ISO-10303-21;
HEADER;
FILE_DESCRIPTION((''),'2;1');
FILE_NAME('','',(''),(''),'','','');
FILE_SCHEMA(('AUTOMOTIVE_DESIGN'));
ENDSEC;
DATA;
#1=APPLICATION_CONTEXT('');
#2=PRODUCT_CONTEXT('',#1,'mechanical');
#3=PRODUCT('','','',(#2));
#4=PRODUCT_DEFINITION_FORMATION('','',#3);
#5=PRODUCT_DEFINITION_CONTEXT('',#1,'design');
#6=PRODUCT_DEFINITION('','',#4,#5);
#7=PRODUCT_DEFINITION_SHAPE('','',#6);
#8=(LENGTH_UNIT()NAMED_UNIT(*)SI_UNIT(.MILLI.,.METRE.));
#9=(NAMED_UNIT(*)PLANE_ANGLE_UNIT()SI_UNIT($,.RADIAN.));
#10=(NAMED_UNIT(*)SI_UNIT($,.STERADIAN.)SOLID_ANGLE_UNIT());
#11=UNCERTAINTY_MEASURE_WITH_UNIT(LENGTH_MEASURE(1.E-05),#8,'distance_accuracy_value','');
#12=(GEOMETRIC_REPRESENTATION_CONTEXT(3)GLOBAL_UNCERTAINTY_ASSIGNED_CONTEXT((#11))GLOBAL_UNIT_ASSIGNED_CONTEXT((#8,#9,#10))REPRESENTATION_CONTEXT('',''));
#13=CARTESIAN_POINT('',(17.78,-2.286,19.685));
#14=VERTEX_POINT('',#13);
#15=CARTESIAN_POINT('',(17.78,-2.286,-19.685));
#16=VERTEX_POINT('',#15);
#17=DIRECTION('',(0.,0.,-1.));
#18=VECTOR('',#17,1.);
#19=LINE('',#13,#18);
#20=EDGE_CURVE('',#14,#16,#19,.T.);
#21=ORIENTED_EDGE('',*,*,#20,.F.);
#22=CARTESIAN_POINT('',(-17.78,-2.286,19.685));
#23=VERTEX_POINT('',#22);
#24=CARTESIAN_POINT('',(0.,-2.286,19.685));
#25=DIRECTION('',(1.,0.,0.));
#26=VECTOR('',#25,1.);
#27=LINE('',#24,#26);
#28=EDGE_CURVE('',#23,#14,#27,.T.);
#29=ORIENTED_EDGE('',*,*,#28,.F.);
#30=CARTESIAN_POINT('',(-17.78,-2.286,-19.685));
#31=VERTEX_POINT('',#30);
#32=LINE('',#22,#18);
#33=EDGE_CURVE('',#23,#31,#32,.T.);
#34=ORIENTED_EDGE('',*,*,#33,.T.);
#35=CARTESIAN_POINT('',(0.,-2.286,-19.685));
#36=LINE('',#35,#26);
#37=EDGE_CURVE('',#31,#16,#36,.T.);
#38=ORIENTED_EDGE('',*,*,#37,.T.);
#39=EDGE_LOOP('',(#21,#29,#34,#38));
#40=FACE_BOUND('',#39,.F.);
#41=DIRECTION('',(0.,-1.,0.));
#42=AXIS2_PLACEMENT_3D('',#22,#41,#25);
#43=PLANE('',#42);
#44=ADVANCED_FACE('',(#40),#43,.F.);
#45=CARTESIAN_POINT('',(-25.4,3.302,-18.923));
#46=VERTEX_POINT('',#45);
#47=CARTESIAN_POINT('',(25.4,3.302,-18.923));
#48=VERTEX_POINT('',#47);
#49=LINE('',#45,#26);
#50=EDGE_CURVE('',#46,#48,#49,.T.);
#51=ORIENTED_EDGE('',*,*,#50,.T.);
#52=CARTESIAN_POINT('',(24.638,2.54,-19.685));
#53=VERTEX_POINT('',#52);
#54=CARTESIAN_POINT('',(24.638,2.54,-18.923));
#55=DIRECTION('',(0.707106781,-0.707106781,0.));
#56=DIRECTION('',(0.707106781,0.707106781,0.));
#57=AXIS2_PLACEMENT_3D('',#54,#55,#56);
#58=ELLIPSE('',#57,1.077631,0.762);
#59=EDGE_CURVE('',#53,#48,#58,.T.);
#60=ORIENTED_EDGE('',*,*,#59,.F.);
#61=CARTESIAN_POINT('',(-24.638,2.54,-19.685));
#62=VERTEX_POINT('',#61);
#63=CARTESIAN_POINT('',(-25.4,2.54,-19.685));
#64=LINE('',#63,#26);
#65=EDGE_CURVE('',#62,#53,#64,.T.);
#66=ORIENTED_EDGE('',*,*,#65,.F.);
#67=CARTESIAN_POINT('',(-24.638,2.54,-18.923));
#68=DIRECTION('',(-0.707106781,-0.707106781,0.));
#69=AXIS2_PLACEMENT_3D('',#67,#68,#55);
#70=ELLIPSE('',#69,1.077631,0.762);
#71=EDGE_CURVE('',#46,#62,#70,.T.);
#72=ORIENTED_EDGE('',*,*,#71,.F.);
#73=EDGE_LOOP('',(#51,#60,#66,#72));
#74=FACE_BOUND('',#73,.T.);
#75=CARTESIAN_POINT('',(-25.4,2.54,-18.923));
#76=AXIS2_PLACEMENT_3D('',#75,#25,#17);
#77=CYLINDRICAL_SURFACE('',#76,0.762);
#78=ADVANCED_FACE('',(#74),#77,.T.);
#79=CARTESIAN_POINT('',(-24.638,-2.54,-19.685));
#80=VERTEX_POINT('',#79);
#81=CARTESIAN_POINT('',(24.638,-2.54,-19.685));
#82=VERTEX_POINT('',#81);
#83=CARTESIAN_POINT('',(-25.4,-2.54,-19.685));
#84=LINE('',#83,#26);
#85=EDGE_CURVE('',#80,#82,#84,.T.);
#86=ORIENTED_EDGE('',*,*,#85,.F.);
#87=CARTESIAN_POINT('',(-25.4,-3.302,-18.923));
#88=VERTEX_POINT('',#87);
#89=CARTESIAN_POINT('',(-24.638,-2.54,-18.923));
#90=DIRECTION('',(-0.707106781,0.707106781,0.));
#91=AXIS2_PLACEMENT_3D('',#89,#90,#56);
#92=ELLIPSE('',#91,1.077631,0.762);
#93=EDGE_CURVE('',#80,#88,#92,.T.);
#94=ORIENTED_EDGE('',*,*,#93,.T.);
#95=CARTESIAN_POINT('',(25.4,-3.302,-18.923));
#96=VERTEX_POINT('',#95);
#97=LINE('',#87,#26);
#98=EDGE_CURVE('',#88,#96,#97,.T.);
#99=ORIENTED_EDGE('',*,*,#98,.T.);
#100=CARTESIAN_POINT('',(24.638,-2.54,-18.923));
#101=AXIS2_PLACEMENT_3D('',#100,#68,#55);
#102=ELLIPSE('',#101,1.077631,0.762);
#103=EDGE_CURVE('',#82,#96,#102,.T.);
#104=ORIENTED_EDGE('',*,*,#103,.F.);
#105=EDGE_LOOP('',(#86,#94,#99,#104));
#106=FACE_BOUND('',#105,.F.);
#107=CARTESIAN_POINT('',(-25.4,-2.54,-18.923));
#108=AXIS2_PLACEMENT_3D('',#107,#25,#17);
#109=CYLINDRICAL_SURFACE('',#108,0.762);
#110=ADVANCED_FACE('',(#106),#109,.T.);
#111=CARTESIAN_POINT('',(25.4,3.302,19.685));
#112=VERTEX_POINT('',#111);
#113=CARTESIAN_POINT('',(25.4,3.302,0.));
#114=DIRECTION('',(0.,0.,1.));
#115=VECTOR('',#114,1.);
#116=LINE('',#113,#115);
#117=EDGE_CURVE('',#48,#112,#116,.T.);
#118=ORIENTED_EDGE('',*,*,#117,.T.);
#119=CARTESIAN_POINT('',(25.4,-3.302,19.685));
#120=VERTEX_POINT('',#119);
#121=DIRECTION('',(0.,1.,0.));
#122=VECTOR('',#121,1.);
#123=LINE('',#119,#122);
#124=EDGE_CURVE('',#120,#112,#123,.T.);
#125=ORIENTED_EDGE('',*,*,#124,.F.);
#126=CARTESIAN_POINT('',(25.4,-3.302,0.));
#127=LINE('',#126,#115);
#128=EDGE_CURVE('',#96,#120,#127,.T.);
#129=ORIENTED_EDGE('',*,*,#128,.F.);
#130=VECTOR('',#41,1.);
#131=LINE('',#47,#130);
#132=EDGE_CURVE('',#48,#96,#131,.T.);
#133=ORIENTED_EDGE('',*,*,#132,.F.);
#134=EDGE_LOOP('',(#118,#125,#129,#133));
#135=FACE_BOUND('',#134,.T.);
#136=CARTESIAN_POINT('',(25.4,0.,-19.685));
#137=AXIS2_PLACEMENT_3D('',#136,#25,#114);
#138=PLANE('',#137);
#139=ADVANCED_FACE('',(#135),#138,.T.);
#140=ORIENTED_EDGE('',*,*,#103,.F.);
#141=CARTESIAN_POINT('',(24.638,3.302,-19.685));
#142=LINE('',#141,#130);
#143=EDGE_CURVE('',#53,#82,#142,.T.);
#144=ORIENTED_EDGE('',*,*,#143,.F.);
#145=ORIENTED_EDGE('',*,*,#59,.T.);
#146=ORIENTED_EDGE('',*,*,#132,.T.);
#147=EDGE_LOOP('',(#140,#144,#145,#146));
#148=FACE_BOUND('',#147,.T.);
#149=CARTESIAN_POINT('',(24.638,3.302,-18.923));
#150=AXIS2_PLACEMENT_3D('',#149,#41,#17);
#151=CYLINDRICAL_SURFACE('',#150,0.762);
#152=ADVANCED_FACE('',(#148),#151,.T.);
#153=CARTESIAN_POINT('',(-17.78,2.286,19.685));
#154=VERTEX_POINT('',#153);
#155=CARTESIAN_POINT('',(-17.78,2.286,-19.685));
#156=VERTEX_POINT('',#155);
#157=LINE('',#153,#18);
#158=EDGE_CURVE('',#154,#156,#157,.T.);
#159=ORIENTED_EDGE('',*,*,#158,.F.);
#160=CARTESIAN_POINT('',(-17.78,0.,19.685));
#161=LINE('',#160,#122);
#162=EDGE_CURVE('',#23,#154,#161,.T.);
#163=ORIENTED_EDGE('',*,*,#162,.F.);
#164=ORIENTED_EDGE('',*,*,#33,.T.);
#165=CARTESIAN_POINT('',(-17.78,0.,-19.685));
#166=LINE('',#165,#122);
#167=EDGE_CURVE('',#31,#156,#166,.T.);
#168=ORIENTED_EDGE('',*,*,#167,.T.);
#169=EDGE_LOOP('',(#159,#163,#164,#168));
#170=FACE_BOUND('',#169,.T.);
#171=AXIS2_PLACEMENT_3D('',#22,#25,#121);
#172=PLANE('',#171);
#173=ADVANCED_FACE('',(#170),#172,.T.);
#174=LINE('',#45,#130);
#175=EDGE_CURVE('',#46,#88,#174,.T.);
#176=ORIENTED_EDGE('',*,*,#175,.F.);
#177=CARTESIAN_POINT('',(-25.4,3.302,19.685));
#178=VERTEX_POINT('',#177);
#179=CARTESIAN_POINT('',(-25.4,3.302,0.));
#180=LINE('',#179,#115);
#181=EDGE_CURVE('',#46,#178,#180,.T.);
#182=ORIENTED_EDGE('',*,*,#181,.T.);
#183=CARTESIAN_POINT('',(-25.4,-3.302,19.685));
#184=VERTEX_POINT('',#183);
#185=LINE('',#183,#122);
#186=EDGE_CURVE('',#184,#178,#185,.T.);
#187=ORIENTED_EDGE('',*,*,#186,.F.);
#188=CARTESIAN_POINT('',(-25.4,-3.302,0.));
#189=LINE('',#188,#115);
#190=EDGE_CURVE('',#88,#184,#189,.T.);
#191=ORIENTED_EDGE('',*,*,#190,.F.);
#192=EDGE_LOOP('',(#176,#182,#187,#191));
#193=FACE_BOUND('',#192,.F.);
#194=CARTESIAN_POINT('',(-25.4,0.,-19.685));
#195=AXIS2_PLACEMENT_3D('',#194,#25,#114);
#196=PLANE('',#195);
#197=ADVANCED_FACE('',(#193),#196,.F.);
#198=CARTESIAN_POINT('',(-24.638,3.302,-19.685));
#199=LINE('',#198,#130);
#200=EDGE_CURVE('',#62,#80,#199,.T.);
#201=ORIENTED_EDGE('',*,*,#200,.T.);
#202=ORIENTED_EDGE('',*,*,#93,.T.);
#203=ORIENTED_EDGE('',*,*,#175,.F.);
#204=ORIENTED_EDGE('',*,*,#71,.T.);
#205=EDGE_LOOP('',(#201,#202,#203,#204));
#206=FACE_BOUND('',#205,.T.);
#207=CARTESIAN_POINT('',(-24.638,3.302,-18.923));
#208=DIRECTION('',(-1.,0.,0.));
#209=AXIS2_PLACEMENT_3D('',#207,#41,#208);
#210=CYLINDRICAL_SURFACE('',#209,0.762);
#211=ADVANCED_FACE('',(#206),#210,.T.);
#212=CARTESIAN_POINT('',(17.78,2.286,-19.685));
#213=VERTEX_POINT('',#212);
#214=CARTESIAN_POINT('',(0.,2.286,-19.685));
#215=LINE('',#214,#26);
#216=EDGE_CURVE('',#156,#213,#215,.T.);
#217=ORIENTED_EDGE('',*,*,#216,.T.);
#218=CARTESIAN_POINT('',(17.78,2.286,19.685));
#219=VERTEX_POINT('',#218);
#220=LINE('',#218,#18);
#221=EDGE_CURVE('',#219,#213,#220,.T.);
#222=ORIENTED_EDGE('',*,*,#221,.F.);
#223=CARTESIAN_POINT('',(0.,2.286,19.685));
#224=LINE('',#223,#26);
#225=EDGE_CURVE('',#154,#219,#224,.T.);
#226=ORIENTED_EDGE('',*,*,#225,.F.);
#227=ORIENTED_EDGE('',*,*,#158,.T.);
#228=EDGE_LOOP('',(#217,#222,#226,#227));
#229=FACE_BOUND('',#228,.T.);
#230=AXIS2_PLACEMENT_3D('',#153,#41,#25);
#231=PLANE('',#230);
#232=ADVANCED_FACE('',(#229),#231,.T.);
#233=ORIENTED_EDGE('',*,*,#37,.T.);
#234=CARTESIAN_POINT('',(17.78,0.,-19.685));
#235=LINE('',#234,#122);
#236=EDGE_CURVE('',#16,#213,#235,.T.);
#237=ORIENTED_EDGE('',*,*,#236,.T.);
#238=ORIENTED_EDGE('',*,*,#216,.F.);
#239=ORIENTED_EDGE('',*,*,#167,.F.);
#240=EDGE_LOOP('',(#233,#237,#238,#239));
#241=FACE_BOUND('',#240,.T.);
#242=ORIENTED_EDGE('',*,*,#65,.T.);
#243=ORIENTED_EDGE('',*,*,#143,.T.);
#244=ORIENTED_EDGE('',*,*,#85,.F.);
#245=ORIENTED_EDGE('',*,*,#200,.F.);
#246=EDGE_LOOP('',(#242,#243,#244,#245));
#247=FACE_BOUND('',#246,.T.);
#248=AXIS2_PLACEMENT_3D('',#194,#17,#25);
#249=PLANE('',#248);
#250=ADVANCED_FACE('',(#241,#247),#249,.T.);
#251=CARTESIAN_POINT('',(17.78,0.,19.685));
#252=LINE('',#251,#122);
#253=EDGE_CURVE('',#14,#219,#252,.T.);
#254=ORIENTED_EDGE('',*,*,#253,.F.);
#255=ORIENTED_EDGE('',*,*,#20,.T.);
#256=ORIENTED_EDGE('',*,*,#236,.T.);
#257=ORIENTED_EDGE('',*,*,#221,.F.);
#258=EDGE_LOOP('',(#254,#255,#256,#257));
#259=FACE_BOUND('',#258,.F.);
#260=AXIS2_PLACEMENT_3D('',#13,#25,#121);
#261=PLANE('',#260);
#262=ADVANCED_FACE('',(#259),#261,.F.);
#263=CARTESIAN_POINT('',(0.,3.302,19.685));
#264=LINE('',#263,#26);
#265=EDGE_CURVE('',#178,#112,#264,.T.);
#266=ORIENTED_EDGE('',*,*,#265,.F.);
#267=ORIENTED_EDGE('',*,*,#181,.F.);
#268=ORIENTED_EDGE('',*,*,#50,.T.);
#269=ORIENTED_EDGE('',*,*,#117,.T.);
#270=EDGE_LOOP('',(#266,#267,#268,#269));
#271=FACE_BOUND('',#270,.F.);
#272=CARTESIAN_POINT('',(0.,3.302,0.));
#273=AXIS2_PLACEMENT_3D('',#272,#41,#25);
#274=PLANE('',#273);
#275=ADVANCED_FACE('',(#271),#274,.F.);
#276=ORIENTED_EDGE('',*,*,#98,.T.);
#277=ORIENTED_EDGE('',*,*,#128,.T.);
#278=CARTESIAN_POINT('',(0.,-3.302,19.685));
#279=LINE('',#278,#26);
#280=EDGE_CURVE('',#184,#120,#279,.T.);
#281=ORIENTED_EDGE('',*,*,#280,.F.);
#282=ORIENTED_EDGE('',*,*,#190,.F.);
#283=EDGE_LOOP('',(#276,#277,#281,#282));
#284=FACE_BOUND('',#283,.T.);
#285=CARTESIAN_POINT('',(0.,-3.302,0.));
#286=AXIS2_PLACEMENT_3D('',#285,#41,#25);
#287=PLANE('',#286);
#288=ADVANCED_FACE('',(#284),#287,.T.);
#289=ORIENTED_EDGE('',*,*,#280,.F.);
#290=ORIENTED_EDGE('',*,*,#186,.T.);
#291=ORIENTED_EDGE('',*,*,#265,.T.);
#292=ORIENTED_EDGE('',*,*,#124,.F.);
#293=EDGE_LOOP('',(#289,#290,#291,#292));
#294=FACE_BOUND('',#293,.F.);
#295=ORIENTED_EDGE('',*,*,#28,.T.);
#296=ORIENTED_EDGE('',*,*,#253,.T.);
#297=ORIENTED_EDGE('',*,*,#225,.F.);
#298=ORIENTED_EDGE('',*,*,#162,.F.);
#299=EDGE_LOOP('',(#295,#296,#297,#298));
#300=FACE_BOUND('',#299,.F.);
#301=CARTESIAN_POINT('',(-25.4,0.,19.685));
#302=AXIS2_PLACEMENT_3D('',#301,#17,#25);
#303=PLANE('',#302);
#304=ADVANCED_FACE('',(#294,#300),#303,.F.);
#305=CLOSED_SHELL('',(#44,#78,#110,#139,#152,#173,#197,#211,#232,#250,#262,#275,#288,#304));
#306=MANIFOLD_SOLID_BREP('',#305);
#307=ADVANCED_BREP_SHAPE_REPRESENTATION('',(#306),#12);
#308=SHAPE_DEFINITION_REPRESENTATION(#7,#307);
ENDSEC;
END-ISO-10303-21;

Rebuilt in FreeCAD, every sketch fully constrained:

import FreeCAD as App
import Part
import Sketcher

V = App.Vector
Q = App.Units.Quantity


def edges_at(feature, points):
    """Names of the edges that pass closest to the given points."""
    edges = feature.Shape.Edges
    near = lambda p: min(range(len(edges)), key=lambda i: edges[i].distToShape(Part.Vertex(*p))[0])
    return sorted({f"Edge{near(p) + 1}" for p in points})

doc = App.newDocument("Part")
params = doc.addObject("Spreadsheet::Sheet", "Params")
for row, (alias, value) in enumerate([
    ("sketch1_width", "2 in"),
    ("sketch1_height", "1.55 in"),
    ("pad1_length", "0.26 in"),
    ("sketch2_width", "1.4 in"),
    ("sketch2_height", "0.18 in"),
    ("pocket1_length", "1.55 in"),
    ("fillet_radius", "0.03 in"),
], start=1):
    params.set(f"A{row}", alias)
    params.set(f"B{row}", "=" + value)
    params.setAlias(f"B{row}", alias)

body = doc.addObject("PartDesign::Body", "Body")

sketch1 = body.newObject("Sketcher::SketchObject", "Sketch")
sketch1.AttachmentSupport = (doc.getObject("XZ_Plane"), [""])
sketch1.MapMode = "FlatFace"
sketch1.addGeometry([
    Part.LineSegment(V(-25, 20, 0), V(-25, -20, 0)),
    Part.LineSegment(V(-25, -20, 0), V(25, -20, 0)),
    Part.LineSegment(V(25, -20, 0), V(25, 20, 0)),
    Part.LineSegment(V(25, 20, 0), V(-25, 20, 0)),
], False)
sketch1.addConstraint([
    Sketcher.Constraint("Coincident", 0, 2, 1, 1),
    Sketcher.Constraint("Coincident", 1, 2, 2, 1),
    Sketcher.Constraint("Coincident", 2, 2, 3, 1),
    Sketcher.Constraint("Coincident", 3, 2, 0, 1),
    Sketcher.Constraint("Vertical", 0),
    Sketcher.Constraint("Horizontal", 1),
    Sketcher.Constraint("Vertical", 2),
    Sketcher.Constraint("Horizontal", 3),
    Sketcher.Constraint("Symmetric", 0, 2, 2, 2, -1, 1),
    Sketcher.Constraint("DistanceX", 1, 1, 1, 2, Q("2 in")),
    Sketcher.Constraint("DistanceY", 0, 2, 0, 1, Q("1.55 in")),
])
sketch1.setExpression("Constraints[9]", "Params.sketch1_width")
sketch1.setExpression("Constraints[10]", "Params.sketch1_height")
pad1 = body.newObject("PartDesign::Pad", "Pad")
pad1.Profile = sketch1
pad1.setExpression("Length", "Params.pad1_length")
pad1.Midplane = True

sketch2 = body.newObject("Sketcher::SketchObject", "Sketch001")
sketch2.AttachmentSupport = (doc.getObject("XY_Plane"), [""])
sketch2.MapMode = "FlatFace"
sketch2.AttachmentOffset = App.Placement(V(0, 0, 0.775 * 25.4), App.Rotation())
sketch2.addGeometry([
    Part.LineSegment(V(-17.8, 2.3, 0), V(-17.8, -2.3, 0)),
    Part.LineSegment(V(-17.8, -2.3, 0), V(17.8, -2.3, 0)),
    Part.LineSegment(V(17.8, -2.3, 0), V(17.8, 2.3, 0)),
    Part.LineSegment(V(17.8, 2.3, 0), V(-17.8, 2.3, 0)),
], False)
sketch2.addConstraint([
    Sketcher.Constraint("Coincident", 0, 2, 1, 1),
    Sketcher.Constraint("Coincident", 1, 2, 2, 1),
    Sketcher.Constraint("Coincident", 2, 2, 3, 1),
    Sketcher.Constraint("Coincident", 3, 2, 0, 1),
    Sketcher.Constraint("Vertical", 0),
    Sketcher.Constraint("Horizontal", 1),
    Sketcher.Constraint("Vertical", 2),
    Sketcher.Constraint("Horizontal", 3),
    Sketcher.Constraint("Symmetric", 0, 2, 2, 2, -1, 1),
    Sketcher.Constraint("DistanceX", 1, 1, 1, 2, Q("1.4 in")),
    Sketcher.Constraint("DistanceY", 0, 2, 0, 1, Q("0.18 in")),
])
sketch2.setExpression("Constraints[9]", "Params.sketch2_width")
sketch2.setExpression("Constraints[10]", "Params.sketch2_height")
pocket1 = body.newObject("PartDesign::Pocket", "Pocket")
pocket1.Profile = sketch2
pocket1.setExpression("Length", "Params.pocket1_length")
doc.recompute()

fillet = body.newObject("PartDesign::Fillet", "Fillet")
fillet.Base = (pocket1, edges_at(pocket1, [
    (0, -3.302, -19.685),
    (-25.4, 0, -19.685),
    (0, 3.302, -19.685),
    (25.4, 0, -19.685),
]))
fillet.setExpression("Radius", "Params.fillet_radius")

doc.recompute()
